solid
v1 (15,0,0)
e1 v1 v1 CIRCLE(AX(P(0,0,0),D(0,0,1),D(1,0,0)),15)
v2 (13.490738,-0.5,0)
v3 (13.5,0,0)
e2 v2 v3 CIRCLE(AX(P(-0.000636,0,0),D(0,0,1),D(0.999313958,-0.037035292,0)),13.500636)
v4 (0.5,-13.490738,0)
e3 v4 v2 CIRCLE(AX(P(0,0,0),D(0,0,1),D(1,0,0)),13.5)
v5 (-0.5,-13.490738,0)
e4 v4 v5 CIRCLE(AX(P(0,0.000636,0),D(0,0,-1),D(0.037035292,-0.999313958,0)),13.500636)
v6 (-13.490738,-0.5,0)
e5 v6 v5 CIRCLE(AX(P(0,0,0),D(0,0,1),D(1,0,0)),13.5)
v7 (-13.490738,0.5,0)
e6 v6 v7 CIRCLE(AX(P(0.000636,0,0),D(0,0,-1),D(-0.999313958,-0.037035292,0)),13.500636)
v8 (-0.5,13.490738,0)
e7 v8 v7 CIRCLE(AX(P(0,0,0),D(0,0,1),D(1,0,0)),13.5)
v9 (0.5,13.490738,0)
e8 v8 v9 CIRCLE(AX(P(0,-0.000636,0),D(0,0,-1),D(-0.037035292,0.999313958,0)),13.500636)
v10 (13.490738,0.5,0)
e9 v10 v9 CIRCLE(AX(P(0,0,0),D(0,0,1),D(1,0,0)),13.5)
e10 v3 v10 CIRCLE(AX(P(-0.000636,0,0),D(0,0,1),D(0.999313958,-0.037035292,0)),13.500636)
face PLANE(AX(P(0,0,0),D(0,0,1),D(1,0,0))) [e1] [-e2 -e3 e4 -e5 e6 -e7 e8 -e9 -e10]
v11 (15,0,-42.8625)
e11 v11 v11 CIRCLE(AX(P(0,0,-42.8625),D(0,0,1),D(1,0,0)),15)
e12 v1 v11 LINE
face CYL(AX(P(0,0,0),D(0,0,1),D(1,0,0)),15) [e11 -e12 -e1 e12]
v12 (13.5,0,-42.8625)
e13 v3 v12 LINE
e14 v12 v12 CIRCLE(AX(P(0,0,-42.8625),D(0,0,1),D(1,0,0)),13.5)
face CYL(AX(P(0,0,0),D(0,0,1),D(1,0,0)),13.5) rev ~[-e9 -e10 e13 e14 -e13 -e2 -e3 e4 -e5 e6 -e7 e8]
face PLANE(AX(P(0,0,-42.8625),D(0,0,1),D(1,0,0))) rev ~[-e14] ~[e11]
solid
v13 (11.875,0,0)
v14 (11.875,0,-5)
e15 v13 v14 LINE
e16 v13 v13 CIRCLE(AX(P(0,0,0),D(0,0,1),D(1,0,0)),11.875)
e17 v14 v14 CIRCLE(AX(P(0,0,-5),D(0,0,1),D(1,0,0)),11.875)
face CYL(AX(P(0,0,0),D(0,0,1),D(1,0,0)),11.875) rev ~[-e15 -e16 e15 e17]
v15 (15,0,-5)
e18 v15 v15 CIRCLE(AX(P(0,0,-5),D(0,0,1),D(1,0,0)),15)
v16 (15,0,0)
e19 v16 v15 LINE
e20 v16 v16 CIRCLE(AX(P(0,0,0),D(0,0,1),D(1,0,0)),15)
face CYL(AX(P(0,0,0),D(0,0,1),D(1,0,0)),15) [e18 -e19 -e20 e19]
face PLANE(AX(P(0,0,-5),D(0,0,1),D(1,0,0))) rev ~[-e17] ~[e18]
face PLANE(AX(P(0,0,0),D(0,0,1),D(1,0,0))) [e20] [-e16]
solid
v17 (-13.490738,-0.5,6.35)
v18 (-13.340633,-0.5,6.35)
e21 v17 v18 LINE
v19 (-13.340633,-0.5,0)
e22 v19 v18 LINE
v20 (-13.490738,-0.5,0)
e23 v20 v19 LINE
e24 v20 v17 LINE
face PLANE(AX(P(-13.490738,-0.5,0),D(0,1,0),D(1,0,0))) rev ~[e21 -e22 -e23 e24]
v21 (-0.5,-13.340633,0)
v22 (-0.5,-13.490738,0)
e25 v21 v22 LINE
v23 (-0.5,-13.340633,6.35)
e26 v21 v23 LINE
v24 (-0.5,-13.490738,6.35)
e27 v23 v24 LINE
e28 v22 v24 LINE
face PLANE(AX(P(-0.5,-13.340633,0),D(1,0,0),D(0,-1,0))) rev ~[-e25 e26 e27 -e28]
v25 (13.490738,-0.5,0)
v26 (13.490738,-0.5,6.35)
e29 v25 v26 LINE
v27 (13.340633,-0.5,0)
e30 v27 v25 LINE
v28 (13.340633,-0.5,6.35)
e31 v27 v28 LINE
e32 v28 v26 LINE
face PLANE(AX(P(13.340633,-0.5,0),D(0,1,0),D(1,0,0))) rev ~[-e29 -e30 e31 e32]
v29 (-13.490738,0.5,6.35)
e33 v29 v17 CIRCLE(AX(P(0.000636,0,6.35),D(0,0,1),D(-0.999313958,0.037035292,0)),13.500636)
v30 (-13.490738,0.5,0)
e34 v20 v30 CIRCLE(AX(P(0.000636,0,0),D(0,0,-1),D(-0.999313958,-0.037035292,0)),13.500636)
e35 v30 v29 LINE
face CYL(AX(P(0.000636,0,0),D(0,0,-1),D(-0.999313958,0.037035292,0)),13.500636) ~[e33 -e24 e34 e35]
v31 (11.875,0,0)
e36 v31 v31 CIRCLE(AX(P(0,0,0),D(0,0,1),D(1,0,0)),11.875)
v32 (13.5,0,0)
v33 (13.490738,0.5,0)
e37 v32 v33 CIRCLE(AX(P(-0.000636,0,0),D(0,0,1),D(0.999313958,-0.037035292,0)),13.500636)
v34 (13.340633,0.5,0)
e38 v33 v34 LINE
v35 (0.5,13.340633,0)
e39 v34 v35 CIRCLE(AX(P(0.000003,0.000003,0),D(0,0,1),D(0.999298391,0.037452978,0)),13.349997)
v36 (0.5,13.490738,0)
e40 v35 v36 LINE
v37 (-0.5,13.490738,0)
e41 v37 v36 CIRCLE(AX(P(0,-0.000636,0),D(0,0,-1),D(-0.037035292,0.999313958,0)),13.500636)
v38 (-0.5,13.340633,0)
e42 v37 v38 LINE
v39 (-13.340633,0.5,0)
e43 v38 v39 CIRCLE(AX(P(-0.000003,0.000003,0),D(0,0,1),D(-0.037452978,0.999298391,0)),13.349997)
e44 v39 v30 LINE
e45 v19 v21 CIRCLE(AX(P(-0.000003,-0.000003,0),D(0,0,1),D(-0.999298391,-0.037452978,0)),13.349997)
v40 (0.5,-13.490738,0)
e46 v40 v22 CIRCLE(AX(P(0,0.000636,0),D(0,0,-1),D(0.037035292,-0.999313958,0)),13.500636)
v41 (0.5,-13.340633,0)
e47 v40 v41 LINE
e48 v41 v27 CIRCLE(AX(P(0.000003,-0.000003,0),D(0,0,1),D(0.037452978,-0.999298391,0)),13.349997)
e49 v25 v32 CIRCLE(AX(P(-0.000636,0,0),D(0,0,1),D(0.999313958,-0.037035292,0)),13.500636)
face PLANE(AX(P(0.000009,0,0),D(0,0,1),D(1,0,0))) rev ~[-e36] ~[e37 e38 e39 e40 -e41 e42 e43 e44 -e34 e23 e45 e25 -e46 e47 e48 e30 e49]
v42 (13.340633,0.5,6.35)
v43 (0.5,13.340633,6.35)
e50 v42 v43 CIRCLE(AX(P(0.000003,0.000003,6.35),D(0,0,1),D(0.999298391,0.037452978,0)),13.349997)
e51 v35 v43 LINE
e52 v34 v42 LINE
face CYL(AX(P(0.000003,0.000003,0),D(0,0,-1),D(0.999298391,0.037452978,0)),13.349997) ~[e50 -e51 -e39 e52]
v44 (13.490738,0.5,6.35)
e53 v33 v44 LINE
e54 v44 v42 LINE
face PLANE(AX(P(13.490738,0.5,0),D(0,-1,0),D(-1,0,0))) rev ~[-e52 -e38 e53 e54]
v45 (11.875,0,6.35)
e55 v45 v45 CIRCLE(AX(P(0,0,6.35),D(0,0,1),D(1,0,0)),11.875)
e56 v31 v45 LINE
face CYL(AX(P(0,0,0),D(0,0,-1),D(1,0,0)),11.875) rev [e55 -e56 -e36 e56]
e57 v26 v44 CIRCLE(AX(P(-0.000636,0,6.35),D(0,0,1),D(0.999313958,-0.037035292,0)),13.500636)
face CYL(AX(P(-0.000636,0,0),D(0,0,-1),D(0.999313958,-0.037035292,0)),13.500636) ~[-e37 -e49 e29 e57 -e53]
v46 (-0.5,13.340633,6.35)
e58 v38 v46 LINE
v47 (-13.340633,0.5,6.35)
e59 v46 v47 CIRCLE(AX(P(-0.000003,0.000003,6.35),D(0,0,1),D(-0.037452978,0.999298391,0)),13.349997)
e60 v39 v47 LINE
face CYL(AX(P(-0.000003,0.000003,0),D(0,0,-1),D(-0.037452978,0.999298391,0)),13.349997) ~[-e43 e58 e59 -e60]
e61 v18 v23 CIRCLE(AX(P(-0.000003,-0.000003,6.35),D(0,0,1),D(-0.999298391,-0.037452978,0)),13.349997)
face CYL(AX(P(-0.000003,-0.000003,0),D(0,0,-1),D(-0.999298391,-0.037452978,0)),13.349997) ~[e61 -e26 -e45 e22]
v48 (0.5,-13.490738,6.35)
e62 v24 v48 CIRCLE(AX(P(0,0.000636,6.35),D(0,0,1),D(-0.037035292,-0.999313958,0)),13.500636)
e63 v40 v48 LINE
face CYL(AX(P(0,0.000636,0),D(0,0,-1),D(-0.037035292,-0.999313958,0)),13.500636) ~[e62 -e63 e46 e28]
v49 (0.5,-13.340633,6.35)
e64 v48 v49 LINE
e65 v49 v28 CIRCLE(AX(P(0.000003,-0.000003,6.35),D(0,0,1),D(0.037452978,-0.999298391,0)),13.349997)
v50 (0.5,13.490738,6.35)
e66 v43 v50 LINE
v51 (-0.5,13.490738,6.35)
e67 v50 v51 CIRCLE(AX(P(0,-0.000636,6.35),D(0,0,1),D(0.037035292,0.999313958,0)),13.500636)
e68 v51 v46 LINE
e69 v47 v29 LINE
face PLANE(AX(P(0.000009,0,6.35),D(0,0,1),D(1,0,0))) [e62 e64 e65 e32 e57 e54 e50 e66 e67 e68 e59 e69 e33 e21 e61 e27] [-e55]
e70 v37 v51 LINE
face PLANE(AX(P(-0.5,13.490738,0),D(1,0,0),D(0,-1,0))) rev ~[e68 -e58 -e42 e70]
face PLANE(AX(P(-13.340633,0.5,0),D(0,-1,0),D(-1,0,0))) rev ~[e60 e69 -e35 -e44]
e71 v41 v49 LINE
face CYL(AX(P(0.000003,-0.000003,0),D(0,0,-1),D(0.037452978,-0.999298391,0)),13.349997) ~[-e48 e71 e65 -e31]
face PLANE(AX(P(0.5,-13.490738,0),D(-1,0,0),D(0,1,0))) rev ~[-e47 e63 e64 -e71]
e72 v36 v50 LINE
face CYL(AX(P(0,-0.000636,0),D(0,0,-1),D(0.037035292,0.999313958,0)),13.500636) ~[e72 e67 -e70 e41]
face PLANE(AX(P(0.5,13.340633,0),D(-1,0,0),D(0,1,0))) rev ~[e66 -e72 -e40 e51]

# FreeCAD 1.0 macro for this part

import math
import FreeCAD as App
import Part
import Sketcher

V = App.Vector
Q = App.Units.Quantity

doc = App.newDocument("Part")
body = doc.addObject("PartDesign::Body", "Body")
body.AllowCompound = True

# Sketch on XY plane
sketch1 = body.newObject("Sketcher::SketchObject", "Sketch")
sketch1.AttachmentSupport = (doc.getObject("XY_Plane"), [""])
sketch1.MapMode = "FlatFace"
sketch1.addGeometry(Part.ArcOfCircle(Part.Circle(V(0.000003, -0.000003, 0), V(0, 0, 1), 13.349997), math.radians(-87.8536), math.radians(-2.1464)), False)
sketch1.addGeometry(Part.LineSegment(V(13.340633, -0.5, 0), V(13.490738, -0.5, 0)), False)
sketch1.addGeometry(Part.ArcOfCircle(Part.Circle(V(-0.000636, 0, 0), V(0, 0, 1), 13.500636), math.radians(-2.122451), math.radians(2.122451)), False)
sketch1.addGeometry(Part.LineSegment(V(13.490738, 0.5, 0), V(13.340633, 0.5, 0)), False)
sketch1.addGeometry(Part.ArcOfCircle(Part.Circle(V(0.000003, 0.000003, 0), V(0, 0, 1), 13.349997), math.radians(2.1464), math.radians(87.8536)), False)
sketch1.addGeometry(Part.LineSegment(V(0.5, 13.340633, 0), V(0.5, 13.490738, 0)), False)
sketch1.addGeometry(Part.ArcOfCircle(Part.Circle(V(0, -0.000636, 0), V(0, 0, 1), 13.500636), math.radians(87.877549), math.radians(92.122451)), False)
sketch1.addGeometry(Part.LineSegment(V(-0.5, 13.490738, 0), V(-0.5, 13.340633, 0)), False)
sketch1.addGeometry(Part.ArcOfCircle(Part.Circle(V(-0.000003, 0.000003, 0), V(0, 0, 1), 13.349997), math.radians(92.1464), math.radians(177.8536)), False)
sketch1.addGeometry(Part.LineSegment(V(-13.340633, 0.5, 0), V(-13.490738, 0.5, 0)), False)
sketch1.addGeometry(Part.ArcOfCircle(Part.Circle(V(0.000636, 0, 0), V(0, 0, 1), 13.500636), math.radians(177.877549), math.radians(182.122451)), False)
sketch1.addGeometry(Part.LineSegment(V(-13.490738, -0.5, 0), V(-13.340633, -0.5, 0)), False)
sketch1.addGeometry(Part.ArcOfCircle(Part.Circle(V(-0.000003, -0.000003, 0), V(0, 0, 1), 13.349997), math.radians(-177.8536), math.radians(-92.1464)), False)
sketch1.addGeometry(Part.LineSegment(V(-0.5, -13.340633, 0), V(-0.5, -13.490738, 0)), False)
sketch1.addGeometry(Part.ArcOfCircle(Part.Circle(V(0, 0.000636, 0), V(0, 0, 1), 13.500636), math.radians(-92.122451), math.radians(-87.877549)), False)
sketch1.addGeometry(Part.LineSegment(V(0.5, -13.490738, 0), V(0.5, -13.340633, 0)), False)
sketch1.addGeometry(Part.Circle(V(0, 0, 0), V(0, 0, 1), 11.875), False)
sketch1.addConstraint(Sketcher.Constraint("Coincident", 0, 2, 1, 1))
sketch1.addConstraint(Sketcher.Constraint("Coincident", 1, 2, 2, 1))
sketch1.addConstraint(Sketcher.Constraint("Coincident", 2, 2, 3, 1))
sketch1.addConstraint(Sketcher.Constraint("Coincident", 3, 2, 4, 1))
sketch1.addConstraint(Sketcher.Constraint("Coincident", 4, 2, 5, 1))
sketch1.addConstraint(Sketcher.Constraint("Coincident", 5, 2, 6, 1))
sketch1.addConstraint(Sketcher.Constraint("Coincident", 6, 2, 7, 1))
sketch1.addConstraint(Sketcher.Constraint("Coincident", 7, 2, 8, 1))
sketch1.addConstraint(Sketcher.Constraint("Coincident", 8, 2, 9, 1))
sketch1.addConstraint(Sketcher.Constraint("Coincident", 9, 2, 10, 1))
sketch1.addConstraint(Sketcher.Constraint("Coincident", 10, 2, 11, 1))
sketch1.addConstraint(Sketcher.Constraint("Coincident", 11, 2, 12, 1))
sketch1.addConstraint(Sketcher.Constraint("Coincident", 12, 2, 13, 1))
sketch1.addConstraint(Sketcher.Constraint("Coincident", 13, 2, 14, 1))
sketch1.addConstraint(Sketcher.Constraint("Coincident", 14, 2, 15, 1))
sketch1.addConstraint(Sketcher.Constraint("Coincident", 15, 2, 0, 1))
sketch1.addConstraint(Sketcher.Constraint("Horizontal", 1))
sketch1.addConstraint(Sketcher.Constraint("Horizontal", 3))
sketch1.addConstraint(Sketcher.Constraint("Vertical", 5))
sketch1.addConstraint(Sketcher.Constraint("Vertical", 7))
sketch1.addConstraint(Sketcher.Constraint("Horizontal", 9))
sketch1.addConstraint(Sketcher.Constraint("Horizontal", 11))
sketch1.addConstraint(Sketcher.Constraint("Vertical", 13))
sketch1.addConstraint(Sketcher.Constraint("Vertical", 15))
sketch1.addConstraint(Sketcher.Constraint("Coincident", 0, 3, -1, 1))
sketch1.addConstraint(Sketcher.Constraint("Coincident", 4, 3, -1, 1))
sketch1.addConstraint(Sketcher.Constraint("Coincident", 8, 3, -1, 1))
sketch1.addConstraint(Sketcher.Constraint("Coincident", 12, 3, -1, 1))
sketch1.addConstraint(Sketcher.Constraint("Coincident", 16, 3, -1, 1))
sketch1.addConstraint(Sketcher.Constraint("Equal", 0, 4))
sketch1.addConstraint(Sketcher.Constraint("Equal", 2, 6))
sketch1.addConstraint(Sketcher.Constraint("Equal", 4, 8))
sketch1.addConstraint(Sketcher.Constraint("Equal", 6, 10))
sketch1.addConstraint(Sketcher.Constraint("Equal", 8, 12))
sketch1.addConstraint(Sketcher.Constraint("Equal", 10, 14))
sketch1.addConstraint(Sketcher.Constraint("Symmetric", 2, 3, 10, 3, -1, 1))
sketch1.addConstraint(Sketcher.Constraint("Symmetric", 6, 3, 14, 3, -1, 1))
sketch1.addConstraint(Sketcher.Constraint("Symmetric", 5, 2, 6, 2, -2))
sketch1.addConstraint(Sketcher.Constraint("Symmetric", 2, 2, 9, 2, -2))
sketch1.addConstraint(Sketcher.Constraint("Horizontal", 1, 2, 10, 2))
sketch1.addConstraint(Sketcher.Constraint("Horizontal", 13, 2, 14, 2))
sketch1.addConstraint(Sketcher.Constraint("Vertical", 1, 2, 2, 2))
sketch1.addConstraint(Sketcher.Constraint("Vertical", 7, 2, 12, 2))
sketch1.addConstraint(Sketcher.Constraint("Equal", 11, 5))
sketch1.addConstraint(Sketcher.Constraint("Diameter", 16, Q("23.75 mm")))
sketch1.addConstraint(Sketcher.Constraint("DistanceY", 1, 2, 2, 2, Q("1 mm")))
sketch1.addConstraint(Sketcher.Constraint("DistanceX", 6, 2, 5, 2, Q("1 mm")))
sketch1.addConstraint(Sketcher.Constraint("Radius", 0, Q("13.349997 mm")))
sketch1.addConstraint(Sketcher.Constraint("Radius", 2, Q("13.500636 mm")))
sketch1.addConstraint(Sketcher.Constraint("DistanceX", 10, 3, 1, 2, Q("13.490102 mm")))
pad1 = body.newObject("PartDesign::Pad", "Pad")
pad1.Profile = sketch1
pad1.Length = 6.35

# Sketch on XY plane
sketch2 = body.newObject("Sketcher::SketchObject", "Sketch001")
sketch2.AttachmentSupport = (doc.getObject("XY_Plane"), [""])
sketch2.MapMode = "FlatFace"
sketch2.addGeometry(Part.Circle(V(0, 0, 0), V(0, 0, 1), 15), False)
sketch2.addGeometry(Part.Circle(V(0, 0, 0), V(0, 0, 1), 13.5), False)
sketch2.addConstraint(Sketcher.Constraint("Coincident", 0, 3, -1, 1))
sketch2.addConstraint(Sketcher.Constraint("Coincident", 1, 3, -1, 1))
sketch2.addConstraint(Sketcher.Constraint("Diameter", 0, Q("30 mm")))
sketch2.addConstraint(Sketcher.Constraint("Diameter", 1, Q("27 mm")))
pad2 = body.newObject("PartDesign::Pad", "Pad001")
pad2.Profile = sketch2
pad2.Length = 42.8625
pad2.Reversed = True
body2 = doc.addObject("PartDesign::Body", "Body001")

# Sketch on XY plane
sketch3 = body2.newObject("Sketcher::SketchObject", "Sketch002")
sketch3.AttachmentSupport = (doc.getObject("XY_Plane001"), [""])
sketch3.MapMode = "FlatFace"
sketch3.addGeometry(Part.Circle(V(0, 0, 0), V(0, 0, 1), 15), False)
sketch3.addGeometry(Part.Circle(V(0, 0, 0), V(0, 0, 1), 11.875), False)
sketch3.addConstraint(Sketcher.Constraint("Coincident", 0, 3, -1, 1))
sketch3.addConstraint(Sketcher.Constraint("Coincident", 1, 3, -1, 1))
sketch3.addConstraint(Sketcher.Constraint("Diameter", 0, Q("30 mm")))
sketch3.addConstraint(Sketcher.Constraint("Diameter", 1, Q("23.75 mm")))
pad3 = body2.newObject("PartDesign::Pad", "Pad002")
pad3.Profile = sketch3
pad3.Length = 5
pad3.Reversed = True

doc.recompute()
